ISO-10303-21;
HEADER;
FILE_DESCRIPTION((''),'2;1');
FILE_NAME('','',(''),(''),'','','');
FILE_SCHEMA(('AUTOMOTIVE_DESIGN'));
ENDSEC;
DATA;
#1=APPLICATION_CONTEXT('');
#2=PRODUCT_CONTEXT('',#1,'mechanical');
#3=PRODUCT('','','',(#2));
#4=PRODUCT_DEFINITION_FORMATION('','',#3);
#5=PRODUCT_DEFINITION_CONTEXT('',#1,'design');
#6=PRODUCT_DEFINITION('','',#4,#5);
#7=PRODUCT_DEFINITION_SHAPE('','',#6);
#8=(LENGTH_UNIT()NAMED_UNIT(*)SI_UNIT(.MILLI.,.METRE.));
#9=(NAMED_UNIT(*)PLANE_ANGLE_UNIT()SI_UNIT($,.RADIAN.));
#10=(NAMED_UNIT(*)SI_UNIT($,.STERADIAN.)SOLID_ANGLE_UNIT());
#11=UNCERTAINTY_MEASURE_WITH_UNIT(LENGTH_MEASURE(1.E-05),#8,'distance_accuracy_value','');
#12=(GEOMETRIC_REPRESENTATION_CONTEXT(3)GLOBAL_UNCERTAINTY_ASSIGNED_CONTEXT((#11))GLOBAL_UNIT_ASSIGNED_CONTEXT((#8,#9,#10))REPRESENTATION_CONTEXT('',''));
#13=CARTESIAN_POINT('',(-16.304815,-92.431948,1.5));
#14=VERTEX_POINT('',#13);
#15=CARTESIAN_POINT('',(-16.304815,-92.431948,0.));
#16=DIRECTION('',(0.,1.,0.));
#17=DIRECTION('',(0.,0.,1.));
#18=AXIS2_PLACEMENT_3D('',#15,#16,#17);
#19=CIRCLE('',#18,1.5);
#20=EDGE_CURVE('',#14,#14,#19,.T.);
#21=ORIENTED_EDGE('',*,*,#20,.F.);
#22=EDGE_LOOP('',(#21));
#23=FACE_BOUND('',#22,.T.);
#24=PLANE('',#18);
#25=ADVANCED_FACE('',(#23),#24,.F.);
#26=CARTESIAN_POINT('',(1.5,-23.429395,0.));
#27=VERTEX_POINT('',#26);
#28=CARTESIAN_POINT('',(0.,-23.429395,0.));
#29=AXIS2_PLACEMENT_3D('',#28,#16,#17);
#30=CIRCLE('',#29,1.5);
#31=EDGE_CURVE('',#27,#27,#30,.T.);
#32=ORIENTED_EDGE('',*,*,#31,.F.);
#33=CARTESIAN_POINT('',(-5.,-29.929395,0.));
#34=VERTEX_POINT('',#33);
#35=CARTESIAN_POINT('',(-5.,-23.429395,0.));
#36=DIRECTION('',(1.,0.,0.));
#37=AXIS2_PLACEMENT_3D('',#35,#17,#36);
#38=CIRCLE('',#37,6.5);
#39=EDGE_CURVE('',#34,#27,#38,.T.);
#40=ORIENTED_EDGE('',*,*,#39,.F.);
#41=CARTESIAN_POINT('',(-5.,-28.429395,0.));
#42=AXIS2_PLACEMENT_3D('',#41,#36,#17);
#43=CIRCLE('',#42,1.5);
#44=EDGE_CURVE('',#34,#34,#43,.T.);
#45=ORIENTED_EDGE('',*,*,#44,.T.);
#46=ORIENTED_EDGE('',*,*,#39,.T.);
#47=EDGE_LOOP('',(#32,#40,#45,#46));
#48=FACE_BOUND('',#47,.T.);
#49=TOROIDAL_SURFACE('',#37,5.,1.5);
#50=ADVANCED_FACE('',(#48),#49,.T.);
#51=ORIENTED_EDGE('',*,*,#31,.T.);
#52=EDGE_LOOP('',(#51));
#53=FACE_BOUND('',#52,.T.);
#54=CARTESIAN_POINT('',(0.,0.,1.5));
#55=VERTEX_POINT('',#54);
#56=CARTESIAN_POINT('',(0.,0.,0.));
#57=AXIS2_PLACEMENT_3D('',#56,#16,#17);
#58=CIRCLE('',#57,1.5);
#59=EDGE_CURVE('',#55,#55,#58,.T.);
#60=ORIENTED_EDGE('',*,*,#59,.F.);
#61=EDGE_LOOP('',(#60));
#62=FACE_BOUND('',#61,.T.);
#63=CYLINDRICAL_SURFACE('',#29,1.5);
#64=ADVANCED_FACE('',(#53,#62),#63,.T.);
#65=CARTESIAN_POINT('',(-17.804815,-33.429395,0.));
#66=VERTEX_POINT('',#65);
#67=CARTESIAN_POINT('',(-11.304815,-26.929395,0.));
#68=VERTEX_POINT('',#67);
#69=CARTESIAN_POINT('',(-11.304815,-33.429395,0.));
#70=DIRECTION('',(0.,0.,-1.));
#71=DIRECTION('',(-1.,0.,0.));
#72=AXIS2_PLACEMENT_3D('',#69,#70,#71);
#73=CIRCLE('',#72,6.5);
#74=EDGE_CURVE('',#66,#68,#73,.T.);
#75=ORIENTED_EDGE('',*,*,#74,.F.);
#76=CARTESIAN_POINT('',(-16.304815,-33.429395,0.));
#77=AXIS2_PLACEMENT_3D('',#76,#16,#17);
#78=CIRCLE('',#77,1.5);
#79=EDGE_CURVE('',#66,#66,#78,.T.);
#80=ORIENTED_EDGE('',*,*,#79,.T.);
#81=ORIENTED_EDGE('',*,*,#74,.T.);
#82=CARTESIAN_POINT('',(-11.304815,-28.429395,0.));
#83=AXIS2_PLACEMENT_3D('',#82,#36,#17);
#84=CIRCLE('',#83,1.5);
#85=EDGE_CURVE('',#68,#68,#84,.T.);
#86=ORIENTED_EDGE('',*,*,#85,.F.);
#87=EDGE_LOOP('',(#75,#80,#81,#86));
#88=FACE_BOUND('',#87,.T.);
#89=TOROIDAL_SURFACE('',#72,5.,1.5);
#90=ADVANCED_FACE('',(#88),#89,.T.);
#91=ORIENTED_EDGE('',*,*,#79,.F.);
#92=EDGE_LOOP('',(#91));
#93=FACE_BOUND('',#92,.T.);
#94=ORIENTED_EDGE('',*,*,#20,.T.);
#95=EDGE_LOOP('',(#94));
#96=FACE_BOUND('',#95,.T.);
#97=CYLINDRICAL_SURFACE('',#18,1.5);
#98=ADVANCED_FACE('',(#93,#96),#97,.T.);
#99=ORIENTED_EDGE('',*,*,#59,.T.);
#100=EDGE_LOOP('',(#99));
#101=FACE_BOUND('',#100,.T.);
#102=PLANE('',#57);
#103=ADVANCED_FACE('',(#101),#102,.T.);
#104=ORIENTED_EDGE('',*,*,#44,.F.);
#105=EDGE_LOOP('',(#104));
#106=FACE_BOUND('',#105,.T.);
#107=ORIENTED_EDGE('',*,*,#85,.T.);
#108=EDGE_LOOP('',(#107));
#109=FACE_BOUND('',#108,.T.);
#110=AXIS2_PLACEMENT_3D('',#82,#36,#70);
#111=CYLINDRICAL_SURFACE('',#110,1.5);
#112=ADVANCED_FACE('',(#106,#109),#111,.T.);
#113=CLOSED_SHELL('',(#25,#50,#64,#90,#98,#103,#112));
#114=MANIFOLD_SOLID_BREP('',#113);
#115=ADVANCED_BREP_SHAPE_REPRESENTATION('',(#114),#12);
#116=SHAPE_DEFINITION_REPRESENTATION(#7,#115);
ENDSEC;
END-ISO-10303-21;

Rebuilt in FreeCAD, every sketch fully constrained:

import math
import FreeCAD as App
import Part
import Sketcher

V = App.Vector

doc = App.newDocument("Part")
body = doc.addObject("PartDesign::Body", "Body")

# Sketch on XZ plane
sketch1 = body.newObject("Sketcher::SketchObject", "Sketch")
sketch1.AttachmentSupport = (doc.getObject("XZ_Plane"), [""])
sketch1.MapMode = "FlatFace"
sketch1.addGeometry(Part.Circle(V(0, 0, 0), V(0, 0, 1), 1.5), False)
sketch1.addConstraint([
    Sketcher.Constraint("Coincident", 0, 3, -1, 1),
    Sketcher.Constraint("Diameter", 0, 3.0),
])

# Sketch on XY plane
sketch2 = body.newObject("Sketcher::SketchObject", "Sketch001")
sketch2.AttachmentSupport = (doc.getObject("XY_Plane"), [""])
sketch2.MapMode = "FlatFace"
sketch2.addGeometry([
    Part.LineSegment(V(0, 0, 0), V(0, -23, 0)),  # 0
    Part.ArcOfCircle(Part.Circle(V(-5, -23, 0), V(0, 0, 1), 5), math.radians(-90), math.radians(0)),  # 1
    Part.LineSegment(V(-5, -28, 0), V(-11, -28, 0)),  # 2
    Part.ArcOfCircle(Part.Circle(V(-11, -33, 0), V(0, 0, 1), 5), math.radians(90), math.radians(180)),  # 3
    Part.LineSegment(V(-16, -33, 0), V(-16, -92, 0)),  # 4
], False)
sketch2.addConstraint([
    Sketcher.Constraint("Tangent", 0, 2, 1, 2),
    Sketcher.Constraint("Tangent", 1, 1, 2, 1),
    Sketcher.Constraint("Tangent", 2, 2, 3, 1),
    Sketcher.Constraint("Tangent", 3, 2, 4, 1),
    Sketcher.Constraint("Vertical", 0),
    Sketcher.Constraint("Horizontal", 2),
    Sketcher.Constraint("Vertical", 4),
    Sketcher.Constraint("Coincident", 0, 1, -1, 1),
    Sketcher.Constraint("Equal", 1, 3),
    Sketcher.Constraint("Radius", 1, 5.0),
    Sketcher.Constraint("DistanceX", 2, 2, 2, 1, 6.304815),
    Sketcher.Constraint("DistanceY", 0, 2, 0, 1, 23.429395),
    Sketcher.Constraint("DistanceY", 4, 2, 4, 1, 59.002553),
])
doc.recompute()

additivepipe = body.newObject("PartDesign::AdditivePipe", "AdditivePipe")
additivepipe.Profile = sketch1
additivepipe.Spine = (sketch2, ["Edge1", "Edge2", "Edge3", "Edge4", "Edge5"])

doc.recompute()
